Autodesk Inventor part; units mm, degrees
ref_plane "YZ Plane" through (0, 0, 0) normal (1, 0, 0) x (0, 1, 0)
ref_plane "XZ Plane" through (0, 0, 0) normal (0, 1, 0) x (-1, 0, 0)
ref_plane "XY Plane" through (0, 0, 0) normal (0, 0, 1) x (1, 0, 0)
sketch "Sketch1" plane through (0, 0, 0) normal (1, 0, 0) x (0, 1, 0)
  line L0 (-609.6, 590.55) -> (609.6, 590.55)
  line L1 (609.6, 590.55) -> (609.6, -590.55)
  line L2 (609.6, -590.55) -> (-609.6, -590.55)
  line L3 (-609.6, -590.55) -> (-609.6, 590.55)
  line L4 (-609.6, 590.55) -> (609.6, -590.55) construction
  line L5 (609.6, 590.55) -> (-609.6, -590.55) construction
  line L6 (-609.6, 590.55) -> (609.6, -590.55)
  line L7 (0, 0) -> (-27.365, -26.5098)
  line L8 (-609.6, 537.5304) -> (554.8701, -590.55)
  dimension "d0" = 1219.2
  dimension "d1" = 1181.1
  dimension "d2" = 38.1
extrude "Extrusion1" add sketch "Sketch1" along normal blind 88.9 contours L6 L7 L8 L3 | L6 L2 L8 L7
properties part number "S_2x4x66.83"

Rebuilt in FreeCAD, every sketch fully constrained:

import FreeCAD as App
import Part
import Sketcher

V = App.Vector
Q = App.Units.Quantity

doc = App.newDocument("Part")
body = doc.addObject("PartDesign::Body", "Body")

# Sketch on YZ plane
sketch1 = doc.addObject("Sketcher::SketchObject", "Sketch")
body.addObject(sketch1)
sketch1.AttachmentSupport = (doc.YZ_Plane, [""])
sketch1.MapMode = "FlatFace"
sketch1.addGeometry(Part.LineSegment(V(-610, 591, 0), V(-610, 538, 0)), False)
sketch1.addGeometry(Part.LineSegment(V(-610, 538, 0), V(555, -591, 0)), False)
sketch1.addGeometry(Part.LineSegment(V(555, -591, 0), V(610, -591, 0)), False)
sketch1.addGeometry(Part.LineSegment(V(610, -591, 0), V(-610, 591, 0)), False)
sketch1.addConstraint(Sketcher.Constraint("Coincident", 0, 2, 1, 1))
sketch1.addConstraint(Sketcher.Constraint("Coincident", 1, 2, 2, 1))
sketch1.addConstraint(Sketcher.Constraint("Coincident", 2, 2, 3, 1))
sketch1.addConstraint(Sketcher.Constraint("Coincident", 3, 2, 0, 1))
sketch1.addConstraint(Sketcher.Constraint("Vertical", 0))
sketch1.addConstraint(Sketcher.Constraint("Horizontal", 2))
sketch1.addConstraint(Sketcher.Constraint("Symmetric", 2, 2, 3, 2, -1, 1))
sketch1.addConstraint(Sketcher.Constraint("Parallel", 1, 3))
sketch1.addConstraint(Sketcher.Constraint("DistanceX", 0, 2, 2, 2, Q("48 in")))
sketch1.addConstraint(Sketcher.Constraint("DistanceY", 1, 2, 3, 2, Q("46.5 in")))
sketch1.addConstraint(Sketcher.Constraint("Distance", 1, Q("63.83 in")))
pad1 = doc.addObject("PartDesign::Pad", "Pad")
body.addObject(pad1)
pad1.Profile = sketch1
pad1.Length = Q("3.5 in")

doc.recompute()
